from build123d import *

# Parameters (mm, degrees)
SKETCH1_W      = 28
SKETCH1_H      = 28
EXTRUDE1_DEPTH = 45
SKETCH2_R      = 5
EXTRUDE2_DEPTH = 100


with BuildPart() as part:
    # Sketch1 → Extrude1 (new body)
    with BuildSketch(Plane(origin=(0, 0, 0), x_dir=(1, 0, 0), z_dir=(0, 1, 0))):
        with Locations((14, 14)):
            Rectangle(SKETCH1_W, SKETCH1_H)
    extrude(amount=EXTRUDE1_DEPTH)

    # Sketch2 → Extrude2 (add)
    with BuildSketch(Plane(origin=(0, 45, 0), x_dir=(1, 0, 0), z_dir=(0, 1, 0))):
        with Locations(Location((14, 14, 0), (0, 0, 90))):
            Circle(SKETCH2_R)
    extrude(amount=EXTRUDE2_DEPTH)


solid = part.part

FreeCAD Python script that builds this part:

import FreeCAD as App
import Part
import Sketcher

V = App.Vector
Q = App.Units.Quantity


def add_polygon(sketch, points):
    """Adds a closed chain of lines whose ends are joined by coincident constraints."""
    first, n = sketch.GeometryCount, len(points)
    for a, b in zip(points, points[1:] + points[:1]):
        sketch.addGeometry(Part.LineSegment(App.Vector(*a, 0), App.Vector(*b, 0)), False)
    for i in range(n):
        sketch.addConstraint(Sketcher.Constraint("Coincident", first + i, 2, first + (i + 1) % n, 1))

doc = App.newDocument("Part")
body = doc.addObject("PartDesign::Body", "Body")

# Sketch on XZ plane
sketch1 = doc.addObject("Sketcher::SketchObject", "Sketch")
body.addObject(sketch1)
sketch1.AttachmentSupport = (doc.XZ_Plane, [""])
sketch1.MapMode = "FlatFace"
add_polygon(sketch1, [(0, -28), (0, 0), (28, 0), (28, -28)])  # lines 0-3
sketch1.addConstraint(Sketcher.Constraint("Vertical", 0))
sketch1.addConstraint(Sketcher.Constraint("Horizontal", 1))
sketch1.addConstraint(Sketcher.Constraint("Vertical", 2))
sketch1.addConstraint(Sketcher.Constraint("Horizontal", 3))
sketch1.addConstraint(Sketcher.Constraint("Coincident", 0, 2, -1, 1))
sketch1.addConstraint(Sketcher.Constraint("Equal", 3, 0))
sketch1.addConstraint(Sketcher.Constraint("DistanceX", 1, 1, 1, 2, Q("28 mm")))
pad1 = doc.addObject("PartDesign::Pad", "Pad")
body.addObject(pad1)
pad1.Profile = sketch1
pad1.Length = 45
pad1.Reversed = True

# Sketch on XZ plane
sketch2 = doc.addObject("Sketcher::SketchObject", "Sketch001")
body.addObject(sketch2)
sketch2.AttachmentSupport = (doc.XZ_Plane, [""])
sketch2.MapMode = "FlatFace"
sketch2.AttachmentOffset = App.Placement(V(0, 0, -45), App.Rotation())
sketch2.addGeometry(Part.Circle(V(14, -14, 0), V(0, 0, 1), 5), False)
sketch2.addConstraint(Sketcher.Constraint("Diameter", 0, Q("10 mm")))
sketch2.addConstraint(Sketcher.Constraint("DistanceX", -1, 1, 0, 3, Q("14 mm")))
sketch2.addConstraint(Sketcher.Constraint("DistanceY", 0, 3, -1, 1, Q("14 mm")))
pad2 = doc.addObject("PartDesign::Pad", "Pad001")
body.addObject(pad2)
pad2.Profile = sketch2
pad2.Length = 100
pad2.Reversed = True

doc.recompute()
